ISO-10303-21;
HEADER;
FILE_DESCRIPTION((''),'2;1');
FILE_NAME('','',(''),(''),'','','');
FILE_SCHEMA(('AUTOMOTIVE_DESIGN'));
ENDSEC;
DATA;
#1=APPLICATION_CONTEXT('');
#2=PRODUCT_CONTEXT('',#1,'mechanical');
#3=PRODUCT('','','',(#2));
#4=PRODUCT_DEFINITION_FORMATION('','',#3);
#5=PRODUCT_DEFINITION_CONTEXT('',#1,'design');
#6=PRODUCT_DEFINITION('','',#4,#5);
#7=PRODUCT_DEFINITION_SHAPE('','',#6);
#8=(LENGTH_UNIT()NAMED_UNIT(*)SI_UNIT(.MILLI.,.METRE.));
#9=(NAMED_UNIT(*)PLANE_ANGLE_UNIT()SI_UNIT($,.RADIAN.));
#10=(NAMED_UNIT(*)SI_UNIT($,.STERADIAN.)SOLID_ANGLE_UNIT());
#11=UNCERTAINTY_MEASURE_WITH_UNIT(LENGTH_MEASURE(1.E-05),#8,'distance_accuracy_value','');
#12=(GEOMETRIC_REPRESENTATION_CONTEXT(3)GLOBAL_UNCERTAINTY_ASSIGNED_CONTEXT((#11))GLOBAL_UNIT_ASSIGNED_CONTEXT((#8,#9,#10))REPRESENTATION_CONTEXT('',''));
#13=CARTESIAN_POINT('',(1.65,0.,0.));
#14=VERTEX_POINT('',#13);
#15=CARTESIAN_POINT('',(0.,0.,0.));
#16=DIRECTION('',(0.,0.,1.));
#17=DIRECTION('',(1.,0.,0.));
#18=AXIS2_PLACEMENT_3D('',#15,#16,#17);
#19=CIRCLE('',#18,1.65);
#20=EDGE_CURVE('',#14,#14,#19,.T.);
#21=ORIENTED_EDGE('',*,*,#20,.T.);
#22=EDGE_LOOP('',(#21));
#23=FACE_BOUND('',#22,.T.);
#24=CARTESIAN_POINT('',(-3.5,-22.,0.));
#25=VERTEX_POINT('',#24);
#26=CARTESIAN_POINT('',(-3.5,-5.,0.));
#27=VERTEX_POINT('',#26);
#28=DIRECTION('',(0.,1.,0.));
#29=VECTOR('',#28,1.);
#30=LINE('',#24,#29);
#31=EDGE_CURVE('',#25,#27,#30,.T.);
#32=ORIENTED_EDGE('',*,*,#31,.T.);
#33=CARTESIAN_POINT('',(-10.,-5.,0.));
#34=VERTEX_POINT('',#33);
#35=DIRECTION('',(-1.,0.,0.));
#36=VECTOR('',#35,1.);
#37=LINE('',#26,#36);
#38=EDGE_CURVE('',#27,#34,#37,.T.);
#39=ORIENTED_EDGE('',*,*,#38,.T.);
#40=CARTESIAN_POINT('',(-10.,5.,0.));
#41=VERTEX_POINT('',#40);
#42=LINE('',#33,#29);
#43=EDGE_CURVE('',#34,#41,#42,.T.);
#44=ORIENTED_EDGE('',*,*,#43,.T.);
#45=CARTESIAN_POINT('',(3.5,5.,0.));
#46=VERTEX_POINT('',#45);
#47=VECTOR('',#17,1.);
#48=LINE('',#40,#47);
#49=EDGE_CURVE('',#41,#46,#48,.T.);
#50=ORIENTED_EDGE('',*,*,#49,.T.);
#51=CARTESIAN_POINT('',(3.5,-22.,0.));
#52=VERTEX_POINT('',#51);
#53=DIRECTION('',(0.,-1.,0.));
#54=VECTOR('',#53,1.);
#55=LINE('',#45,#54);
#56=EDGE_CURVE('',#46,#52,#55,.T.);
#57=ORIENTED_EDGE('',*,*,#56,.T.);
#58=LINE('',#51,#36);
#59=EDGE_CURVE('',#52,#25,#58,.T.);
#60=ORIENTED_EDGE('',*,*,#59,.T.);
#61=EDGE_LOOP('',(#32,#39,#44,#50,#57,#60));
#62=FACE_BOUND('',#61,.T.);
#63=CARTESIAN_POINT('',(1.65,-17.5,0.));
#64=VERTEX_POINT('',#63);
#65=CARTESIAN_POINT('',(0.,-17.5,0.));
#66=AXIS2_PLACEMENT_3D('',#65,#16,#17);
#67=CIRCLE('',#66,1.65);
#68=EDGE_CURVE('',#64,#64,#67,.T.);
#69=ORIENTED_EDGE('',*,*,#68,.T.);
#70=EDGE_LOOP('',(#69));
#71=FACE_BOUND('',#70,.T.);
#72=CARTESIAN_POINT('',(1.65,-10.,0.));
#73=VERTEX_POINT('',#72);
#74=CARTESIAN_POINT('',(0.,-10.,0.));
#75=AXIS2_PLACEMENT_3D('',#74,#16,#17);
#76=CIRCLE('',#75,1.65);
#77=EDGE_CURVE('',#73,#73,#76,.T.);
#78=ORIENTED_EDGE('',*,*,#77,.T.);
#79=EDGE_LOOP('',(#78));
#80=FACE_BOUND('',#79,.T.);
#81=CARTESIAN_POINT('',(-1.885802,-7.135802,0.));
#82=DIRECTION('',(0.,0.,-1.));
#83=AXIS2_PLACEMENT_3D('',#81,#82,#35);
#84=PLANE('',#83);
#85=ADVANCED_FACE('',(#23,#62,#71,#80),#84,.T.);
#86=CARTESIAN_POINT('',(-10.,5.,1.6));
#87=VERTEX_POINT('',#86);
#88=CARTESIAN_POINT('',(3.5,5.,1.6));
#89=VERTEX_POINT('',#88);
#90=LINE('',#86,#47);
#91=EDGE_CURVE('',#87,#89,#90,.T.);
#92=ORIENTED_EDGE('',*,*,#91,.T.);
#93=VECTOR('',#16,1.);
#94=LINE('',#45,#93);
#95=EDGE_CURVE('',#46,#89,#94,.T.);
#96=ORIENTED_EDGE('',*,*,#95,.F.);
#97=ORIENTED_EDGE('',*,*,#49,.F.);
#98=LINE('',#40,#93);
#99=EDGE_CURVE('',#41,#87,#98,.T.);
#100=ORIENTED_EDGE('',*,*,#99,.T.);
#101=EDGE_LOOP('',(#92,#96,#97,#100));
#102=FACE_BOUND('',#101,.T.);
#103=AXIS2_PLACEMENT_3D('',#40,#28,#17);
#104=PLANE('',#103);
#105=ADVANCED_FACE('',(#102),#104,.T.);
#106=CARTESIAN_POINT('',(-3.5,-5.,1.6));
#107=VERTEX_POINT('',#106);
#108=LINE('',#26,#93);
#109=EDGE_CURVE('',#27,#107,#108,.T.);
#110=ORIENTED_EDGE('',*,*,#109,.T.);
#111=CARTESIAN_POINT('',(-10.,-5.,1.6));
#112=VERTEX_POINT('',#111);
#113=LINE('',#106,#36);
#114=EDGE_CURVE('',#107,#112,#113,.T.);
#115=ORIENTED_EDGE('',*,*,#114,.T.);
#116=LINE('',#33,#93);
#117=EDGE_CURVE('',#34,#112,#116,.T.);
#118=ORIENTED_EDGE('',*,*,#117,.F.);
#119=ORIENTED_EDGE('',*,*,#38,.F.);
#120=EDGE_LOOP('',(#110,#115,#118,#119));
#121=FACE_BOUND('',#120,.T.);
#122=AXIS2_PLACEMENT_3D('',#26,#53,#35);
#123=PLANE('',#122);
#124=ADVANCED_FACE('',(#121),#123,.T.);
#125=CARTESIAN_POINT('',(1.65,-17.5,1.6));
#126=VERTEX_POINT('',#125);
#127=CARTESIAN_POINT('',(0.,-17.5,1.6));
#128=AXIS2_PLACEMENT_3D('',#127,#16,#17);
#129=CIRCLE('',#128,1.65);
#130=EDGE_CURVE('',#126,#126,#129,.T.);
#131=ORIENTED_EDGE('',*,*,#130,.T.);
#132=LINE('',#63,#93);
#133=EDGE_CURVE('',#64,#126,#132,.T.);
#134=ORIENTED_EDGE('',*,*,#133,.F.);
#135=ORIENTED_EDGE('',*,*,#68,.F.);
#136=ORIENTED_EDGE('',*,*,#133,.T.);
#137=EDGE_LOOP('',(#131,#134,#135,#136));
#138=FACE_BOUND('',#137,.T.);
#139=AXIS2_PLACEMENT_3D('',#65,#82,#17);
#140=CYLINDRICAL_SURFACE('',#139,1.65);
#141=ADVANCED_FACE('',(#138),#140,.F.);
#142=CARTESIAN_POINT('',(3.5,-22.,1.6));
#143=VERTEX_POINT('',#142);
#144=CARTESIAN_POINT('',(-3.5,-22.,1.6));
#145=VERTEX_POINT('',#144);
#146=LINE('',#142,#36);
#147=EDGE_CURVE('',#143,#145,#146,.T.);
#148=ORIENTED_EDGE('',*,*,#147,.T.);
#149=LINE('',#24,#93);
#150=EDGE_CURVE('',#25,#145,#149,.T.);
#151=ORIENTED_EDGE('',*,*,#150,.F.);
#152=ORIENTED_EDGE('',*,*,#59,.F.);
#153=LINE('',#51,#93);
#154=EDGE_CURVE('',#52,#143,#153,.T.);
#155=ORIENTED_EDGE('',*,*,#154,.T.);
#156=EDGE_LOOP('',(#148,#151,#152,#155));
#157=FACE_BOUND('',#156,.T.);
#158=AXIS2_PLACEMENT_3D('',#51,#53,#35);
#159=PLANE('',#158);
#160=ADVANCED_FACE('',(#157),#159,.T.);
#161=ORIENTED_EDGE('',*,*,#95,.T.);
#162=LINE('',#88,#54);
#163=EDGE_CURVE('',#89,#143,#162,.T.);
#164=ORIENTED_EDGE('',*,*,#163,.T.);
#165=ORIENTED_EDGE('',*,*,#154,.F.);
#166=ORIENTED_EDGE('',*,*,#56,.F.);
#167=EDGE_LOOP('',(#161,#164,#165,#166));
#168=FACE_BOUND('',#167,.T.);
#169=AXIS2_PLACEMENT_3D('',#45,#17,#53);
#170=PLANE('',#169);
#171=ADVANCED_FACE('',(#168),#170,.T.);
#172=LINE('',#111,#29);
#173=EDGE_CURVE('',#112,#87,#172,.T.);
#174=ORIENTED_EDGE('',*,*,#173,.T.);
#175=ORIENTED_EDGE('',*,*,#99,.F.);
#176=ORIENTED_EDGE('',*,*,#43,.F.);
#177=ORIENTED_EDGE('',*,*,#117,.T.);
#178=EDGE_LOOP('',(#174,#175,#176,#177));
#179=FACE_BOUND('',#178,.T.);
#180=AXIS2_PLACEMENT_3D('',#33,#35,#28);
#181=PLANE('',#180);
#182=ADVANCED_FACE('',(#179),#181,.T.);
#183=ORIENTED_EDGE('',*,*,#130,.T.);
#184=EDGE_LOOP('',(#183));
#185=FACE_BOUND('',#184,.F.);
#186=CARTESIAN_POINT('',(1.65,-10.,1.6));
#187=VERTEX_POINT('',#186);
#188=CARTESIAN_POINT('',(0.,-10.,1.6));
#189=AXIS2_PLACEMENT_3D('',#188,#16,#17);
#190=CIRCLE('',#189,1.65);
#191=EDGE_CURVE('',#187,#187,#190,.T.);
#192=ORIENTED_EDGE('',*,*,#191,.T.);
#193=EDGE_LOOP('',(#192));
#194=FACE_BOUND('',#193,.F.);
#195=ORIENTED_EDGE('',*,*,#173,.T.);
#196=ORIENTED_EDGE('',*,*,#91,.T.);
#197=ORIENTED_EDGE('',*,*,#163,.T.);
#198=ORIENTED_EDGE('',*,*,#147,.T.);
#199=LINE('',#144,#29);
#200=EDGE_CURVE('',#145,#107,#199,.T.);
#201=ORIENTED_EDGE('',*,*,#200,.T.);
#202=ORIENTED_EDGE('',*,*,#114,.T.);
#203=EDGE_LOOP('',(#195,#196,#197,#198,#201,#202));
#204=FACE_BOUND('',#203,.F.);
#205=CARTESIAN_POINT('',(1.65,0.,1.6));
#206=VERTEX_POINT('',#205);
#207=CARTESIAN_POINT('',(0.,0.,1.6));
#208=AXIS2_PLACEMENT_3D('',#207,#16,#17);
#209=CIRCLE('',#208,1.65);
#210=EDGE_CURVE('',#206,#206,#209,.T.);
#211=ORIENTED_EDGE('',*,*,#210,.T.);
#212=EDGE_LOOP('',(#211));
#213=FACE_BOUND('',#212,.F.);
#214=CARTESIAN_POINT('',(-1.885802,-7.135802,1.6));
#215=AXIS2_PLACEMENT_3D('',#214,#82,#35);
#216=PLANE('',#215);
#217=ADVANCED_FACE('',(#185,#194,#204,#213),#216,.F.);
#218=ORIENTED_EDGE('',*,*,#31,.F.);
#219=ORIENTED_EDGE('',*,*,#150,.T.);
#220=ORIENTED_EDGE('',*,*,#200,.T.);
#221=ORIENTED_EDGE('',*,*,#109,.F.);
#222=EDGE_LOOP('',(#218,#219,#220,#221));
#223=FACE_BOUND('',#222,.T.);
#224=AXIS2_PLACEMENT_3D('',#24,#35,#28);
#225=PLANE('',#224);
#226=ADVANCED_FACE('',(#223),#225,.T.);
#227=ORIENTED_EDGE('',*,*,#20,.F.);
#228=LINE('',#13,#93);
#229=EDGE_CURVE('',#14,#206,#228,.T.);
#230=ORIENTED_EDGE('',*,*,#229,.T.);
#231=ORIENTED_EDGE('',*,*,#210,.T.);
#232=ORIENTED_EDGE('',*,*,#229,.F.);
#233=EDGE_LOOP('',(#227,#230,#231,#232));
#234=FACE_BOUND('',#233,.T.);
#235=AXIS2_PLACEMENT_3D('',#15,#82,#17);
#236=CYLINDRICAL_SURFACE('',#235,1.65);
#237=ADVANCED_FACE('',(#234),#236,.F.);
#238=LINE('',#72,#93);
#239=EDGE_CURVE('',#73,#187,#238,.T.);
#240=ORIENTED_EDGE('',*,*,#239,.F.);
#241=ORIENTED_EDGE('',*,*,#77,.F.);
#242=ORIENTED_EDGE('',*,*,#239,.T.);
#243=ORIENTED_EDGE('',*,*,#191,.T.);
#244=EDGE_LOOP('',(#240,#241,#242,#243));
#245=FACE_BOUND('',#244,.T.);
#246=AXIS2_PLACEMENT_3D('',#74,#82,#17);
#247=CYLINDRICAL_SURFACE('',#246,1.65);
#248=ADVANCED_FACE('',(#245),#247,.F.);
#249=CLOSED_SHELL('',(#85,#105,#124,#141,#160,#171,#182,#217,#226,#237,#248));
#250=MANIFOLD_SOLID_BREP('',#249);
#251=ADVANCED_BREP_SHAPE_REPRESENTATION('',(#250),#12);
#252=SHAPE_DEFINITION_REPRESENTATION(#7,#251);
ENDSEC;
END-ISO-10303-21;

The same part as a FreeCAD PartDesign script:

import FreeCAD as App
import Part
import Sketcher


def add_polygon(sketch, points):
    """Adds a closed chain of lines whose ends are joined by coincident constraints."""
    first, n = sketch.GeometryCount, len(points)
    for a, b in zip(points, points[1:] + points[:1]):
        sketch.addGeometry(Part.LineSegment(App.Vector(*a, 0), App.Vector(*b, 0)), False)
    for i in range(n):
        sketch.addConstraint(Sketcher.Constraint("Coincident", first + i, 2, first + (i + 1) % n, 1))

doc = App.newDocument("Part")
body = doc.addObject("PartDesign::Body", "Body")

sketch1 = doc.addObject("Sketcher::SketchObject", "Sketch")
body.addObject(sketch1)
sketch1.AttachmentSupport = (doc.XY_Plane, [""])
sketch1.MapMode = "FlatFace"
add_polygon(sketch1, [(3.5, -22), (3.5, 5), (-10, 5), (-10, -5), (-3.5, -5), (-3.5, -22)])
sketch1.addGeometry(Part.Circle(App.Vector(0, -17.5, 0), App.Vector(0, 0, 1), 1.6), False)
sketch1.addGeometry(Part.Circle(App.Vector(0, -10, 0), App.Vector(0, 0, 1), 1.6), False)
sketch1.addGeometry(Part.Circle(App.Vector(0, 0, 0), App.Vector(0, 0, 1), 1.6), False)
sketch1.addConstraint([
    Sketcher.Constraint("Vertical", 0),
    Sketcher.Constraint("Horizontal", 1),
    Sketcher.Constraint("Vertical", 2),
    Sketcher.Constraint("Horizontal", 3),
    Sketcher.Constraint("Vertical", 4),
    Sketcher.Constraint("Horizontal", 5),
    Sketcher.Constraint("Coincident", 8, 3, -1, 1),
    Sketcher.Constraint("Equal", 6, 7),
    Sketcher.Constraint("Equal", 7, 8),
    Sketcher.Constraint("Symmetric", 0, 2, 3, 2, -1, 1),
    Sketcher.Constraint("PointOnObject", 6, 3, -2),
    Sketcher.Constraint("PointOnObject", 7, 3, -2),
    Sketcher.Constraint("Diameter", 6, 3.3),
    Sketcher.Constraint("DistanceX", 5, 1, 5, 2, 7.0),
    Sketcher.Constraint("DistanceY", 0, 1, 0, 2, 27.0),
    Sketcher.Constraint("DistanceY", 2, 2, 2, 1, 10.0),
    Sketcher.Constraint("DistanceX", 1, 2, 1, 1, 13.5),
    Sketcher.Constraint("DistanceY", 7, 3, -1, 1, 10.0),
    Sketcher.Constraint("DistanceY", 6, 3, -1, 1, 17.5),
])
pad1 = doc.addObject("PartDesign::Pad", "Pad")
body.addObject(pad1)
pad1.Profile = sketch1
pad1.Length = 1.6

doc.recompute()
